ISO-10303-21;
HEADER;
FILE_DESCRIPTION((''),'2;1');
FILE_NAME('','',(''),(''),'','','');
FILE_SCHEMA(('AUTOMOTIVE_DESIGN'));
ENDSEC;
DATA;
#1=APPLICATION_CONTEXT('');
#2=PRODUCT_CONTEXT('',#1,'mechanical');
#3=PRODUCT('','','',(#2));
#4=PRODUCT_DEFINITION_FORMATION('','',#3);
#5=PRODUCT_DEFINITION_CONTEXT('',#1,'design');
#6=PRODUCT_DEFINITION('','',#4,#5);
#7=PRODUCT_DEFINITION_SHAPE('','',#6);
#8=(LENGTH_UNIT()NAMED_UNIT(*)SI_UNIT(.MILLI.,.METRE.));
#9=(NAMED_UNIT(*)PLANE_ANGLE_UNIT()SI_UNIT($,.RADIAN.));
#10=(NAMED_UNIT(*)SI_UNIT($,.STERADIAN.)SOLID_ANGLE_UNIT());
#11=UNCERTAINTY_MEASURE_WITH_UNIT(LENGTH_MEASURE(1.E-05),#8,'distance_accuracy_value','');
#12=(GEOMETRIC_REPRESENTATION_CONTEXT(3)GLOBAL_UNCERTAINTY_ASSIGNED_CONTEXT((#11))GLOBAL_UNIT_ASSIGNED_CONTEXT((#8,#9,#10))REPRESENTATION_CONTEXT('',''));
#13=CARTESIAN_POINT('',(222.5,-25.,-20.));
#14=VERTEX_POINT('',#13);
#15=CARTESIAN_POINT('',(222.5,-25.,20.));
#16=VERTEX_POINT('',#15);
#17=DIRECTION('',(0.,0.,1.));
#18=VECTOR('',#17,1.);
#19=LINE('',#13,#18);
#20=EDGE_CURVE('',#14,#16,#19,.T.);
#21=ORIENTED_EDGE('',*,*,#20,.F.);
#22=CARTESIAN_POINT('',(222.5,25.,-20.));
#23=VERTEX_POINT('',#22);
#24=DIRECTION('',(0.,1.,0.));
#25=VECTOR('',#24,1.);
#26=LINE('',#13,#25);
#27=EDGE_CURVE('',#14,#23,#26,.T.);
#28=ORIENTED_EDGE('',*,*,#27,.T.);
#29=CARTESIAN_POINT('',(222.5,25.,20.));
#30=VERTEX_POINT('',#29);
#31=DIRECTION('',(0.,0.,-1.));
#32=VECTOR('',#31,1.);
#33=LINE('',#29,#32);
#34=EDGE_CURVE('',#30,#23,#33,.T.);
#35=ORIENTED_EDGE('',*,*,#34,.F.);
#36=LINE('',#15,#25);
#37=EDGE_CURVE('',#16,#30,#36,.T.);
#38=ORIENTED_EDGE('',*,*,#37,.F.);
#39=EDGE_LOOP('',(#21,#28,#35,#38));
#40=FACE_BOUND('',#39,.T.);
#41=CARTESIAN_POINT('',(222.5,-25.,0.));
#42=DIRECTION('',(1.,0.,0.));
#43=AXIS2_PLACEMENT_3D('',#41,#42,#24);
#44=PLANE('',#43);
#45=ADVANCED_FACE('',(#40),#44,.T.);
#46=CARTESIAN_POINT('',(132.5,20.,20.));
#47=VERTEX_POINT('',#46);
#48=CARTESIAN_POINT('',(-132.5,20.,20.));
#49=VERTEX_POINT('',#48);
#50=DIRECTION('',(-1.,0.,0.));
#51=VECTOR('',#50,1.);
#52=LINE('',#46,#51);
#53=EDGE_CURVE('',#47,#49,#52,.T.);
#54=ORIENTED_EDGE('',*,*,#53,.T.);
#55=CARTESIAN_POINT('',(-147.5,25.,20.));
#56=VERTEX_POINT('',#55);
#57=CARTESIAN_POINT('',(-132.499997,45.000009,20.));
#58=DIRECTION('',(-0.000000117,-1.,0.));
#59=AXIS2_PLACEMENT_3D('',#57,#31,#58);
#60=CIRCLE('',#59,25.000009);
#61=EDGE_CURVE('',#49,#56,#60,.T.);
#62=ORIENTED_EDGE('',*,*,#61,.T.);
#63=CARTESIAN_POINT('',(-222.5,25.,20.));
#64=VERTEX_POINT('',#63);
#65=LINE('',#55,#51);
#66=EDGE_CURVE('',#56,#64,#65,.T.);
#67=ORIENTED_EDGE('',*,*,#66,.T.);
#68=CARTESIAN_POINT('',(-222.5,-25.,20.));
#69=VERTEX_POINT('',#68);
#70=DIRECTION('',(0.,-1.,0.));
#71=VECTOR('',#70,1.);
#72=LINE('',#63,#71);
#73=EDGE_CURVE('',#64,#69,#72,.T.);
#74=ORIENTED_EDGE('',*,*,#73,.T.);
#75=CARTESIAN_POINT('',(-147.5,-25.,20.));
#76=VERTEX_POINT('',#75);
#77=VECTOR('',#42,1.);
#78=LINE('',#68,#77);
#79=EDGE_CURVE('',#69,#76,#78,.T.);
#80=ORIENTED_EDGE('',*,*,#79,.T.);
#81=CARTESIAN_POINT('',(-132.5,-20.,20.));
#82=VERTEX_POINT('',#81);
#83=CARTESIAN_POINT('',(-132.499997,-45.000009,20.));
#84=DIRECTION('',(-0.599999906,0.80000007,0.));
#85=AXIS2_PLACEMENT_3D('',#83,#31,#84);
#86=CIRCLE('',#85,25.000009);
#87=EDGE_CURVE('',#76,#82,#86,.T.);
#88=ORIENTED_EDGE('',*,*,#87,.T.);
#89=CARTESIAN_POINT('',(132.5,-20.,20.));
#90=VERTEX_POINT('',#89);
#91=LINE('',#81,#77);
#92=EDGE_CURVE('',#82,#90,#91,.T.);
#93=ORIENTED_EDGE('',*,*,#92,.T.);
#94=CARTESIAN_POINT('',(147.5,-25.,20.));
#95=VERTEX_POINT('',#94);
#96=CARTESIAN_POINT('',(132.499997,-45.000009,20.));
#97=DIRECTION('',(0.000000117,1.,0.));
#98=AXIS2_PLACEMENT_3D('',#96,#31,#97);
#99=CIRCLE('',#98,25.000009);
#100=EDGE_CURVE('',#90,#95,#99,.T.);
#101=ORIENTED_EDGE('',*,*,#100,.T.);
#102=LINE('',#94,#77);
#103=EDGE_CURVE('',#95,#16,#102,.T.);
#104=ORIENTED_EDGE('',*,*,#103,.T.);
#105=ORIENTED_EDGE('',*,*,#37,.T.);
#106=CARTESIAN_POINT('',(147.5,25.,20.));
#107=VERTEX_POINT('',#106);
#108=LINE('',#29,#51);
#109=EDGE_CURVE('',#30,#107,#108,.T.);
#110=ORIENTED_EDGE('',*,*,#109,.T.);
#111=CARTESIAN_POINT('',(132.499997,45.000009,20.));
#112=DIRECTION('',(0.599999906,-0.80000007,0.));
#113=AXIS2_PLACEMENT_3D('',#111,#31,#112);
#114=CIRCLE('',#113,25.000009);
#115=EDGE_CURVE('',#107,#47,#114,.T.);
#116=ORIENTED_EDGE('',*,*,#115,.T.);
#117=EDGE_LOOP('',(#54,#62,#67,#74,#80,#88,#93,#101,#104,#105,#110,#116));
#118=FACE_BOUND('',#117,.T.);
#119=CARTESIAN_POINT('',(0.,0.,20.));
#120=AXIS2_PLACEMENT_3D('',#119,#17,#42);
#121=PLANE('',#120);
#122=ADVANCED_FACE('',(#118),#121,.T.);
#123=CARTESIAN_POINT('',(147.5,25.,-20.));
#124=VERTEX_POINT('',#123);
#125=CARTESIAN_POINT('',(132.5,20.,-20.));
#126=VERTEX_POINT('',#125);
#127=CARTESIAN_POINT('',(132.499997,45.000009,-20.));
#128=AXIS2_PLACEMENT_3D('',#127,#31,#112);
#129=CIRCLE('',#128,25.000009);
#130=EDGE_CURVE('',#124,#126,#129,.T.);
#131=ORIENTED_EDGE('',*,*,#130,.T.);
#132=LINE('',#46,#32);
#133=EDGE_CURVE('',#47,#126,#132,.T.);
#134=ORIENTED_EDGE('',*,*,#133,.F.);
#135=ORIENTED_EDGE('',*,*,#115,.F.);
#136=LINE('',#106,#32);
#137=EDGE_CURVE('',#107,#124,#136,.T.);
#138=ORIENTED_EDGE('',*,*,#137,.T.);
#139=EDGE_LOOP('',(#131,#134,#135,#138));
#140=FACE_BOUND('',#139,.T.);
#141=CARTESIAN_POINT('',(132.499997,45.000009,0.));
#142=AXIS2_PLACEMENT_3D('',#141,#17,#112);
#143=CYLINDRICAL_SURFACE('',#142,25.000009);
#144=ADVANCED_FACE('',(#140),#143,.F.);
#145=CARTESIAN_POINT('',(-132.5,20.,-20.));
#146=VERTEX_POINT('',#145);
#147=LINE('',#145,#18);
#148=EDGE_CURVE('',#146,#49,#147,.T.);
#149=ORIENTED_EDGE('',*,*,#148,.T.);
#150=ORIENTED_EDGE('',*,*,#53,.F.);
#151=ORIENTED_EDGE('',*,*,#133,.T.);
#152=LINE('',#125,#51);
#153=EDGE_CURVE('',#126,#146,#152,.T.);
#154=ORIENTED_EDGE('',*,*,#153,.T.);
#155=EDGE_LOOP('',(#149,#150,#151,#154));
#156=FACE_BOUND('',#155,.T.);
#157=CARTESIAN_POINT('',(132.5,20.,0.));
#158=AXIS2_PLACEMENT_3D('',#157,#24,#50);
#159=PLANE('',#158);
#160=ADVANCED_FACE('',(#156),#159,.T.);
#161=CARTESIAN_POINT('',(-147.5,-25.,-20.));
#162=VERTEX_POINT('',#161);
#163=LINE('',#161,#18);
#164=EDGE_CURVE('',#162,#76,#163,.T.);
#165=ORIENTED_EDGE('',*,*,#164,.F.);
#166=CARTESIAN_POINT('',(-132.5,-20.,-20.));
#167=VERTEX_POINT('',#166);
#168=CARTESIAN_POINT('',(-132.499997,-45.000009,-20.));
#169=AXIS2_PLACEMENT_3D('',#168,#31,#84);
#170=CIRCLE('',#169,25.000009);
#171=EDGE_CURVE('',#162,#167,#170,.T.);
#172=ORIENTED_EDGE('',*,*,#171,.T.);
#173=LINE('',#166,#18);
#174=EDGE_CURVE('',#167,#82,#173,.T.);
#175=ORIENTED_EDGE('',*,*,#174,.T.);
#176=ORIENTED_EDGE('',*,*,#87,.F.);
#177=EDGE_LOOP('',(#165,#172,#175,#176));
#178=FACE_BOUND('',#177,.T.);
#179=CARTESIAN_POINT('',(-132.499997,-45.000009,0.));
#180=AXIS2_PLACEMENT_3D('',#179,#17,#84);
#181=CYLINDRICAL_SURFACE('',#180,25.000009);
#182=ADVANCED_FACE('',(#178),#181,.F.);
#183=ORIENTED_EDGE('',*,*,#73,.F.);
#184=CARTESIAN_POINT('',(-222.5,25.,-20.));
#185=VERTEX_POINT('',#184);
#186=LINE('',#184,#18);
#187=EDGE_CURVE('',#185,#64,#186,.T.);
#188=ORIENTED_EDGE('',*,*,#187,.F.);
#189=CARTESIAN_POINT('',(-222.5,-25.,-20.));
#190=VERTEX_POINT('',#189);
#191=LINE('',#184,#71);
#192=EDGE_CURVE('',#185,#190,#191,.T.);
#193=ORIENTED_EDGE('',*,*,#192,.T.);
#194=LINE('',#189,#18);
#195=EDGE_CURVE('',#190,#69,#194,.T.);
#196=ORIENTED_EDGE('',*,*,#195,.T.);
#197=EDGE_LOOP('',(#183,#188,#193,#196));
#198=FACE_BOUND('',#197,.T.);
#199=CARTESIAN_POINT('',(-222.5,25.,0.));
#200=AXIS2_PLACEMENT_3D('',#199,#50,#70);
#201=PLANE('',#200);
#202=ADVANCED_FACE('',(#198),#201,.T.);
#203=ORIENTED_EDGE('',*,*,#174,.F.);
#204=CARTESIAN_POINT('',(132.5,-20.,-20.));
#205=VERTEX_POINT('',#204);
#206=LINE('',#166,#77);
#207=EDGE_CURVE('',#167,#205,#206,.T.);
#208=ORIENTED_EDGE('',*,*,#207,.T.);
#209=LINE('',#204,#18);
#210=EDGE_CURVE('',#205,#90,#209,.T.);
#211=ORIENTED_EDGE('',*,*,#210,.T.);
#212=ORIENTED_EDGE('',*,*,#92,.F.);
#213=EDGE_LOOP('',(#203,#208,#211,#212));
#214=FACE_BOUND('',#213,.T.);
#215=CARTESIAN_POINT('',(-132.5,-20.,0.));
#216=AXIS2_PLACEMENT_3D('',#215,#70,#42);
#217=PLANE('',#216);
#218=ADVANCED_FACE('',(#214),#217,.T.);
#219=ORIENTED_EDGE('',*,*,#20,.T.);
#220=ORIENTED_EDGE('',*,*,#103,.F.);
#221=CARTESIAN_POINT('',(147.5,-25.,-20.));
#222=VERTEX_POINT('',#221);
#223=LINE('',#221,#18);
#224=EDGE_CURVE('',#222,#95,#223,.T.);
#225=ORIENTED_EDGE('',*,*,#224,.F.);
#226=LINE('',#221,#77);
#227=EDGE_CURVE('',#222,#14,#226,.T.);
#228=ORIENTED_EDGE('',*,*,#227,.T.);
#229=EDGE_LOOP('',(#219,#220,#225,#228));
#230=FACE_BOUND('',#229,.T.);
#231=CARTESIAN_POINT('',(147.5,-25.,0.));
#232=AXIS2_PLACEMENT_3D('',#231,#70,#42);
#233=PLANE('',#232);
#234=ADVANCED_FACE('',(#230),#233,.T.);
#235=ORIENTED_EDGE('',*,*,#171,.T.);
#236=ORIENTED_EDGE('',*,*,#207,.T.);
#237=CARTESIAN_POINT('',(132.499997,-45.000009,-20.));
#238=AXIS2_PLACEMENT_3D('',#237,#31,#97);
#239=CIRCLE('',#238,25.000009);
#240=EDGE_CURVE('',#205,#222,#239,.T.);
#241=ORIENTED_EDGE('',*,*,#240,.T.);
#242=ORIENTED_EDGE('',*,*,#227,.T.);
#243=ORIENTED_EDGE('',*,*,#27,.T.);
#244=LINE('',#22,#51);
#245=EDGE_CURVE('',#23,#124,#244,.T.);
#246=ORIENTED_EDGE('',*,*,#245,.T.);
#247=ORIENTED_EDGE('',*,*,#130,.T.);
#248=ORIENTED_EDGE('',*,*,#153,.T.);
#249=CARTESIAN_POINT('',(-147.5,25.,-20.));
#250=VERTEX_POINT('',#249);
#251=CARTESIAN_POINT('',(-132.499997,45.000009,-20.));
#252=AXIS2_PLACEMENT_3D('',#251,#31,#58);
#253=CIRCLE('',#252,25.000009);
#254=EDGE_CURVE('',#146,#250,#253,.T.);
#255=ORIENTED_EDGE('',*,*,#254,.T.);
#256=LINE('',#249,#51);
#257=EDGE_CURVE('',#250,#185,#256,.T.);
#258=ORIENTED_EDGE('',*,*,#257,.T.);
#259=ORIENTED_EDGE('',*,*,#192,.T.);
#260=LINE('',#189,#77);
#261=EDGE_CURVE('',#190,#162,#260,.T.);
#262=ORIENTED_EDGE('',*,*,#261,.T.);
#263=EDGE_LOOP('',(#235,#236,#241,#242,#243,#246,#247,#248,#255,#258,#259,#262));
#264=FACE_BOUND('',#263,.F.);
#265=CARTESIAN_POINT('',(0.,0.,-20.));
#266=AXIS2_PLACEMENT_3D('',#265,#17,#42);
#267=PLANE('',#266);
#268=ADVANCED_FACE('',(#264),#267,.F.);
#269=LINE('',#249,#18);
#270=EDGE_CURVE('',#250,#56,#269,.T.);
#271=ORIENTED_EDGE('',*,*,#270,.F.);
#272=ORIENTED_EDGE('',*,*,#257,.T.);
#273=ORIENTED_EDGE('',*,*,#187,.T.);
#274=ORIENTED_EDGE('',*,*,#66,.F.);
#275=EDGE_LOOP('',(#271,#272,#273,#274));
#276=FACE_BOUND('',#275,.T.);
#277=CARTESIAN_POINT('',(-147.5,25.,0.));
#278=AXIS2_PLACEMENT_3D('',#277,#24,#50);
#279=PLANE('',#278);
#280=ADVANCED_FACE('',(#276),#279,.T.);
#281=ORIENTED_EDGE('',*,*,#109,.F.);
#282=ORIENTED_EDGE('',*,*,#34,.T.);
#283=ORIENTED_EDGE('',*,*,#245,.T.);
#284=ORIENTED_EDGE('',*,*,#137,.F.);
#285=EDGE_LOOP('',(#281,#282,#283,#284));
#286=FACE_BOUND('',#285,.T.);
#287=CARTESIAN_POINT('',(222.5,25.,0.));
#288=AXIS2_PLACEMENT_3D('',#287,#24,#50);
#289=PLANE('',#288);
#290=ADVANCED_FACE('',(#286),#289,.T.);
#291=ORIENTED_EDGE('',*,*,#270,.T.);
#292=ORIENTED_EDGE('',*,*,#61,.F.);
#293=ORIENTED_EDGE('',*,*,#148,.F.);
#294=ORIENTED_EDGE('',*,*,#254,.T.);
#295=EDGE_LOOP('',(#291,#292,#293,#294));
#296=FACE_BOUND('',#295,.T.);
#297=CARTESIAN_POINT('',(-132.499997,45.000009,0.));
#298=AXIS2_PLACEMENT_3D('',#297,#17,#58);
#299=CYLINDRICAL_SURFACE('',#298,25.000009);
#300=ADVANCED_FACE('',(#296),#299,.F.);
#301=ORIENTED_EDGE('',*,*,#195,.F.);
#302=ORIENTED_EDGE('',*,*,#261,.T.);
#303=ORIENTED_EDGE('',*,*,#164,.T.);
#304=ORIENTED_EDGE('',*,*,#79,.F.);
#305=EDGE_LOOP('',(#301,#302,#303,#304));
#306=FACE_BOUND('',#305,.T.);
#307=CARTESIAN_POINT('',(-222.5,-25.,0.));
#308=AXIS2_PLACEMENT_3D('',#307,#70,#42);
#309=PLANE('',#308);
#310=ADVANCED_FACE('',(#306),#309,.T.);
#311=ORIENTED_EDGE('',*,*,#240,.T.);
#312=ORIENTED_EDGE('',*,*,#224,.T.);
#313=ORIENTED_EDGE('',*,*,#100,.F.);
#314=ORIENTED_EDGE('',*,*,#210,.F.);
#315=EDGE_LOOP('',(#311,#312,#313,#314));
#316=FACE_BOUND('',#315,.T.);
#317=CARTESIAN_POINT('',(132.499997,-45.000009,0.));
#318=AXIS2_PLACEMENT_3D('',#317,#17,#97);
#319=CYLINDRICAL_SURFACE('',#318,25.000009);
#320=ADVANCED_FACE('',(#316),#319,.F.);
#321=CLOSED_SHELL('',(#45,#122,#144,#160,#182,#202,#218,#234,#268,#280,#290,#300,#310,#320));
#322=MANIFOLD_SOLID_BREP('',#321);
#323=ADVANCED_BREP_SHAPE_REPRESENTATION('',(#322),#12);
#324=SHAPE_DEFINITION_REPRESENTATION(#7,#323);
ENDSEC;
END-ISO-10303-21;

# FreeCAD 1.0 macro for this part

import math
import FreeCAD as App
import Part
import Sketcher

V = App.Vector

doc = App.newDocument("Part")
params = doc.addObject("Spreadsheet::Sheet", "Params")
for row, (alias, value) in enumerate([
    ("sketch1_width", "265 mm"),
    ("sketch1_width2", "75 mm"),
    ("sketch1_height", "50 mm"),
    ("pad1_length", "40 mm"),
], start=1):
    params.set(f"A{row}", alias)
    params.set(f"B{row}", "=" + value)
    params.setAlias(f"B{row}", alias)

body = doc.addObject("PartDesign::Body", "Body")

# Sketch on XY plane
sketch1 = doc.addObject("Sketcher::SketchObject", "Sketch")
body.addObject(sketch1)
sketch1.AttachmentSupport = (doc.XY_Plane, [""])
sketch1.MapMode = "FlatFace"
sketch1.addGeometry(Part.LineSegment(V(132.5, 20, 0), V(-132.5, 20, 0)), False)
sketch1.addGeometry(Part.ArcOfCircle(Part.Circle(V(-132.499997, 45.000009, 0), V(0, 0, 1), 25.000009), math.radians(-126.869891), math.radians(-90.000007)), False)
sketch1.addGeometry(Part.LineSegment(V(-147.5, 25, 0), V(-222.5, 25, 0)), False)
sketch1.addGeometry(Part.LineSegment(V(-222.5, 25, 0), V(-222.5, -25, 0)), False)
sketch1.addGeometry(Part.LineSegment(V(-222.5, -25, 0), V(-147.5, -25, 0)), False)
sketch1.addGeometry(Part.ArcOfCircle(Part.Circle(V(-132.499997, -45.000009, 0), V(0, 0, 1), 25.000009), math.radians(90.000007), math.radians(126.869891)), False)
sketch1.addGeometry(Part.LineSegment(V(-132.5, -20, 0), V(132.5, -20, 0)), False)
sketch1.addGeometry(Part.ArcOfCircle(Part.Circle(V(132.499997, -45.000009, 0), V(0, 0, 1), 25.000009), math.radians(53.130109), math.radians(89.999993)), False)
sketch1.addGeometry(Part.LineSegment(V(147.5, -25, 0), V(222.5, -25, 0)), False)
sketch1.addGeometry(Part.LineSegment(V(222.5, -25, 0), V(222.5, 25, 0)), False)
sketch1.addGeometry(Part.LineSegment(V(222.5, 25, 0), V(147.5, 25, 0)), False)
sketch1.addGeometry(Part.ArcOfCircle(Part.Circle(V(132.499997, 45.000009, 0), V(0, 0, 1), 25.000009), math.radians(-89.999993), math.radians(-53.130109)), False)
sketch1.addConstraint(Sketcher.Constraint("Tangent", 0, 2, 1, 2))
sketch1.addConstraint(Sketcher.Constraint("Coincident", 1, 1, 2, 1))
sketch1.addConstraint(Sketcher.Constraint("Coincident", 2, 2, 3, 1))
sketch1.addConstraint(Sketcher.Constraint("Coincident", 3, 2, 4, 1))
sketch1.addConstraint(Sketcher.Constraint("Coincident", 4, 2, 5, 2))
sketch1.addConstraint(Sketcher.Constraint("Tangent", 5, 1, 6, 1))
sketch1.addConstraint(Sketcher.Constraint("Tangent", 6, 2, 7, 2))
sketch1.addConstraint(Sketcher.Constraint("Coincident", 7, 1, 8, 1))
sketch1.addConstraint(Sketcher.Constraint("Coincident", 8, 2, 9, 1))
sketch1.addConstraint(Sketcher.Constraint("Coincident", 9, 2, 10, 1))
sketch1.addConstraint(Sketcher.Constraint("Coincident", 10, 2, 11, 2))
sketch1.addConstraint(Sketcher.Constraint("Tangent", 11, 1, 0, 1))
sketch1.addConstraint(Sketcher.Constraint("Horizontal", 0))
sketch1.addConstraint(Sketcher.Constraint("Horizontal", 2))
sketch1.addConstraint(Sketcher.Constraint("Vertical", 3))
sketch1.addConstraint(Sketcher.Constraint("Horizontal", 4))
sketch1.addConstraint(Sketcher.Constraint("Horizontal", 6))
sketch1.addConstraint(Sketcher.Constraint("Horizontal", 8))
sketch1.addConstraint(Sketcher.Constraint("Vertical", 9))
sketch1.addConstraint(Sketcher.Constraint("Horizontal", 10))
sketch1.addConstraint(Sketcher.Constraint("Equal", 1, 5))
sketch1.addConstraint(Sketcher.Constraint("Equal", 5, 7))
sketch1.addConstraint(Sketcher.Constraint("Equal", 7, 11))
sketch1.addConstraint(Sketcher.Constraint("Symmetric", 1, 3, 7, 3, -1, 1))
sketch1.addConstraint(Sketcher.Constraint("Symmetric", 2, 2, 8, 2, -1, 1))
sketch1.addConstraint(Sketcher.Constraint("Symmetric", 4, 2, 10, 2, -1, 1))
sketch1.addConstraint(Sketcher.Constraint("Symmetric", 4, 2, 7, 1, -2))
sketch1.addConstraint(Sketcher.Constraint("DistanceX", 0, 2, 0, 1, 265.0))
sketch1.addConstraint(Sketcher.Constraint("DistanceX", 2, 2, 2, 1, 75.0))
sketch1.addConstraint(Sketcher.Constraint("DistanceY", 3, 2, 3, 1, 50.0))
sketch1.addConstraint(Sketcher.Constraint("DistanceY", -1, 1, 0, 2, 20.0))
sketch1.addConstraint(Sketcher.Constraint("DistanceX", 1, 1, 0, 2, 15.0))
sketch1.setExpression("Constraints[27]", "Params.sketch1_width")
sketch1.setExpression("Constraints[28]", "Params.sketch1_width2")
sketch1.setExpression("Constraints[29]", "Params.sketch1_height")
pad1 = doc.addObject("PartDesign::Pad", "Pad")
body.addObject(pad1)
pad1.Profile = sketch1
pad1.setExpression("Length", "Params.pad1_length")
pad1.Midplane = True

doc.recompute()
